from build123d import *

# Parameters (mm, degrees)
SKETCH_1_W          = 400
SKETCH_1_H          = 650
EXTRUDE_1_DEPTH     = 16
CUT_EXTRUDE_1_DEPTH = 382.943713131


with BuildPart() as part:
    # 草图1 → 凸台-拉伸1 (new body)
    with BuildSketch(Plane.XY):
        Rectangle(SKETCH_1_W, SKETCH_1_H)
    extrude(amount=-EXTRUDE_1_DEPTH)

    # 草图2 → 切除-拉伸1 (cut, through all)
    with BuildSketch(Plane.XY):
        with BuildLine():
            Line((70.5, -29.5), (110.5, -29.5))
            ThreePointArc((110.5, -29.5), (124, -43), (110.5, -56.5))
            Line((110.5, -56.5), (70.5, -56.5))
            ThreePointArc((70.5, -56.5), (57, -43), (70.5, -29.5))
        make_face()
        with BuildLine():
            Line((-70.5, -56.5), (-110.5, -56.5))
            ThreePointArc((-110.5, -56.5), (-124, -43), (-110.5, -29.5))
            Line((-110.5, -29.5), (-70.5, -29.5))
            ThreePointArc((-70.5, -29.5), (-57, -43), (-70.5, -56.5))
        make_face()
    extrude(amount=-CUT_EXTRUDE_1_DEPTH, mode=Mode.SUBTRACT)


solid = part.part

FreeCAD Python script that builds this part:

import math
import FreeCAD as App
import Part
import Sketcher
from FreeCAD import Vector


def add_polygon(sketch, points):
    """Adds a closed chain of lines whose ends are joined by coincident constraints."""
    first, n = sketch.GeometryCount, len(points)
    for a, b in zip(points, points[1:] + points[:1]):
        sketch.addGeometry(Part.LineSegment(App.Vector(*a, 0), App.Vector(*b, 0)), False)
    for i in range(n):
        sketch.addConstraint(Sketcher.Constraint("Coincident", first + i, 2, first + (i + 1) % n, 1))

doc = App.newDocument("Part")
body = doc.addObject("PartDesign::Body", "Body")

sketch1 = doc.addObject("Sketcher::SketchObject", "Sketch")
body.addObject(sketch1)
sketch1.AttachmentSupport = (doc.XY_Plane, [""])
sketch1.MapMode = "FlatFace"
add_polygon(sketch1, [(-200, 325), (-200, -325), (200, -325), (200, 325)])
sketch1.addConstraint(Sketcher.Constraint("Vertical", 0))
sketch1.addConstraint(Sketcher.Constraint("Horizontal", 1))
sketch1.addConstraint(Sketcher.Constraint("Vertical", 2))
sketch1.addConstraint(Sketcher.Constraint("Horizontal", 3))
sketch1.addConstraint(Sketcher.Constraint("Symmetric", 0, 2, 2, 2, -1, 1))
sketch1.addConstraint(Sketcher.Constraint("DistanceX", 1, 1, 1, 2, 400.0))
sketch1.addConstraint(Sketcher.Constraint("DistanceY", 0, 2, 0, 1, 650.0))
pad1 = doc.addObject("PartDesign::Pad", "Pad")
body.addObject(pad1)
pad1.Profile = sketch1
pad1.Length = 16
pad1.Reversed = True

sketch2 = doc.addObject("Sketcher::SketchObject", "Sketch001")
body.addObject(sketch2)
sketch2.AttachmentSupport = (doc.XY_Plane, [""])
sketch2.MapMode = "FlatFace"
sketch2.addGeometry(Part.LineSegment(Vector(110.5, -29.5, 0), Vector(70.5, -29.5, 0)), False)
sketch2.addGeometry(Part.ArcOfCircle(Part.Circle(Vector(70.5, -43, 0), Vector(0, 0, 1), 13.5), math.radians(90), math.radians(270)), False)
sketch2.addGeometry(Part.LineSegment(Vector(70.5, -56.5, 0), Vector(110.5, -56.5, 0)), False)
sketch2.addGeometry(Part.ArcOfCircle(Part.Circle(Vector(110.5, -43, 0), Vector(0, 0, 1), 13.5), math.radians(-90), math.radians(90)), False)
sketch2.addGeometry(Part.LineSegment(Vector(-110.5, -56.5, 0), Vector(-70.5, -56.5, 0)), False)
sketch2.addGeometry(Part.ArcOfCircle(Part.Circle(Vector(-70.5, -43, 0), Vector(0, 0, 1), 13.5), math.radians(-90), math.radians(90)), False)
sketch2.addGeometry(Part.LineSegment(Vector(-70.5, -29.5, 0), Vector(-110.5, -29.5, 0)), False)
sketch2.addGeometry(Part.ArcOfCircle(Part.Circle(Vector(-110.5, -43, 0), Vector(0, 0, 1), 13.5), math.radians(90), math.radians(270)), False)
sketch2.addConstraint(Sketcher.Constraint("Tangent", 0, 2, 1, 1))
sketch2.addConstraint(Sketcher.Constraint("Tangent", 1, 2, 2, 1))
sketch2.addConstraint(Sketcher.Constraint("Tangent", 2, 2, 3, 1))
sketch2.addConstraint(Sketcher.Constraint("Tangent", 3, 2, 0, 1))
sketch2.addConstraint(Sketcher.Constraint("Tangent", 4, 2, 5, 1))
sketch2.addConstraint(Sketcher.Constraint("Tangent", 5, 2, 6, 1))
sketch2.addConstraint(Sketcher.Constraint("Tangent", 6, 2, 7, 1))
sketch2.addConstraint(Sketcher.Constraint("Tangent", 7, 2, 4, 1))
sketch2.addConstraint(Sketcher.Constraint("Horizontal", 0))
sketch2.addConstraint(Sketcher.Constraint("Horizontal", 2))
sketch2.addConstraint(Sketcher.Constraint("Horizontal", 4))
sketch2.addConstraint(Sketcher.Constraint("Horizontal", 6))
sketch2.addConstraint(Sketcher.Constraint("Equal", 3, 5))
sketch2.addConstraint(Sketcher.Constraint("Symmetric", 1, 3, 5, 3, -2))
sketch2.addConstraint(Sketcher.Constraint("Equal", 2, 4))
sketch2.addConstraint(Sketcher.Constraint("Radius", 1, 13.5))
sketch2.addConstraint(Sketcher.Constraint("DistanceX", 0, 2, 0, 1, 40.0))
sketch2.addConstraint(Sketcher.Constraint("DistanceY", 1, 3, -1, 1, 43.0))
sketch2.addConstraint(Sketcher.Constraint("DistanceX", 5, 3, 1, 3, 141.0))
pocket1 = doc.addObject("PartDesign::Pocket", "Pocket")
body.addObject(pocket1)
pocket1.Profile = sketch2
pocket1.Type = "ThroughAll"

doc.recompute()
